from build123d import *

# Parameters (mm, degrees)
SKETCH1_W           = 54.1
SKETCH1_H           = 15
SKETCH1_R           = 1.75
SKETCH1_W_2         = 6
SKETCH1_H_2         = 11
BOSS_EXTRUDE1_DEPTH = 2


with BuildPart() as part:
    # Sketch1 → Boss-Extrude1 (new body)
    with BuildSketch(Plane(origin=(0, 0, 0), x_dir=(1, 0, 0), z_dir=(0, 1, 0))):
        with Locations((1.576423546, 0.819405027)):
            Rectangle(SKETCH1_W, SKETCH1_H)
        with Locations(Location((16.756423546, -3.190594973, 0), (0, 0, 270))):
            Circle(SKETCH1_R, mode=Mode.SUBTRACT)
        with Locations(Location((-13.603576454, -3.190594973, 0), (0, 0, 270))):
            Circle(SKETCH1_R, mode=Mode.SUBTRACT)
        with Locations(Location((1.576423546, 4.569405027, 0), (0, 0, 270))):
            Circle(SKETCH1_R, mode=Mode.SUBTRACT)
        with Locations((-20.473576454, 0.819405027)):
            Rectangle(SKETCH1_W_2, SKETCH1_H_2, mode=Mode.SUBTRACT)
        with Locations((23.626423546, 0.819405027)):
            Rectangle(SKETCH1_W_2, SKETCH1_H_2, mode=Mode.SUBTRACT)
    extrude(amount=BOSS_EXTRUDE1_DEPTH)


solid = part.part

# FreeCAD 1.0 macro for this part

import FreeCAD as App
import Part
import Sketcher

V = App.Vector

doc = App.newDocument("Part")
body = doc.addObject("PartDesign::Body", "Body")

sketch1 = body.newObject("Sketcher::SketchObject", "Sketch")
sketch1.AttachmentSupport = (doc.getObject("XZ_Plane"), [""])
sketch1.MapMode = "FlatFace"
sketch1.addGeometry([
    Part.LineSegment(V(-25.5, -8.3, 0), V(-25.5, 6.7, 0)),
    Part.LineSegment(V(-25.5, 6.7, 0), V(28.6, 6.7, 0)),
    Part.LineSegment(V(28.6, 6.7, 0), V(28.6, -8.3, 0)),
    Part.LineSegment(V(28.6, -8.3, 0), V(-25.5, -8.3, 0)),
    Part.Circle(V(-13.6, 3.2, 0), V(0, 0, 1), 1.8),
    Part.Circle(V(16.8, 3.2, 0), V(0, 0, 1), 1.8),
    Part.LineSegment(V(-17.5, 4.7, 0), V(-23.5, 4.7, 0)),
    Part.LineSegment(V(-23.5, 4.7, 0), V(-23.5, -6.3, 0)),
    Part.LineSegment(V(-23.5, -6.3, 0), V(-17.5, -6.3, 0)),
    Part.LineSegment(V(-17.5, -6.3, 0), V(-17.5, 4.7, 0)),
    Part.LineSegment(V(26.6, 4.7, 0), V(20.6, 4.7, 0)),
    Part.LineSegment(V(20.6, 4.7, 0), V(20.6, -6.3, 0)),
    Part.LineSegment(V(20.6, -6.3, 0), V(26.6, -6.3, 0)),
    Part.LineSegment(V(26.6, -6.3, 0), V(26.6, 4.7, 0)),
    Part.Circle(V(1.6, -4.6, 0), V(0, 0, 1), 1.8),
], False)
sketch1.addConstraint([
    Sketcher.Constraint("Coincident", 0, 2, 1, 1),
    Sketcher.Constraint("Coincident", 1, 2, 2, 1),
    Sketcher.Constraint("Coincident", 2, 2, 3, 1),
    Sketcher.Constraint("Coincident", 3, 2, 0, 1),
    Sketcher.Constraint("Coincident", 6, 2, 7, 1),
    Sketcher.Constraint("Coincident", 7, 2, 8, 1),
    Sketcher.Constraint("Coincident", 8, 2, 9, 1),
    Sketcher.Constraint("Coincident", 9, 2, 6, 1),
    Sketcher.Constraint("Coincident", 10, 2, 11, 1),
    Sketcher.Constraint("Coincident", 11, 2, 12, 1),
    Sketcher.Constraint("Coincident", 12, 2, 13, 1),
    Sketcher.Constraint("Coincident", 13, 2, 10, 1),
    Sketcher.Constraint("Vertical", 0),
    Sketcher.Constraint("Horizontal", 1),
    Sketcher.Constraint("Vertical", 2),
    Sketcher.Constraint("Horizontal", 3),
    Sketcher.Constraint("Horizontal", 6),
    Sketcher.Constraint("Vertical", 7),
    Sketcher.Constraint("Horizontal", 8),
    Sketcher.Constraint("Vertical", 9),
    Sketcher.Constraint("Horizontal", 10),
    Sketcher.Constraint("Vertical", 11),
    Sketcher.Constraint("Horizontal", 12),
    Sketcher.Constraint("Vertical", 13),
    Sketcher.Constraint("Equal", 4, 5),
    Sketcher.Constraint("Equal", 5, 14),
    Sketcher.Constraint("Horizontal", 4, 3, 5, 3),
    Sketcher.Constraint("Horizontal", 9, 2, 10, 2),
    Sketcher.Constraint("Horizontal", 8, 2, 11, 2),
    Sketcher.Constraint("Equal", 8, 10),
    Sketcher.Constraint("Diameter", 4, 3.5),
    Sketcher.Constraint("DistanceX", 6, 2, 6, 1, 6.0),
    Sketcher.Constraint("DistanceY", 0, 1, 0, 2, 15.0),
    Sketcher.Constraint("DistanceY", 7, 2, 7, 1, 11.0),
    Sketcher.Constraint("DistanceX", 1, 1, 1, 2, 54.1),
    Sketcher.Constraint("DistanceX", 0, 2, 6, 2, 2.0),
    Sketcher.Constraint("DistanceY", 6, 2, 0, 2, 2.0),
    Sketcher.Constraint("DistanceX", 10, 2, 1, 2, 8.0),
    Sketcher.Constraint("DistanceX", 4, 3, 5, 3, 30.36),
    Sketcher.Constraint("DistanceX", 4, 3, 14, 3, 15.18),
    Sketcher.Constraint("DistanceY", 14, 3, 4, 3, 7.76),
    Sketcher.Constraint("DistanceX", 0, 2, 4, 3, 11.87),
    Sketcher.Constraint("DistanceY", 4, 3, 0, 2, 3.49),
    Sketcher.Constraint("DistanceX", 4, 3, -1, 1, 13.603576),
    Sketcher.Constraint("DistanceY", -1, 1, 4, 3, 3.190595),
])
pad1 = body.newObject("PartDesign::Pad", "Pad")
pad1.Profile = sketch1
pad1.Length = 2
pad1.Reversed = True

doc.recompute()
